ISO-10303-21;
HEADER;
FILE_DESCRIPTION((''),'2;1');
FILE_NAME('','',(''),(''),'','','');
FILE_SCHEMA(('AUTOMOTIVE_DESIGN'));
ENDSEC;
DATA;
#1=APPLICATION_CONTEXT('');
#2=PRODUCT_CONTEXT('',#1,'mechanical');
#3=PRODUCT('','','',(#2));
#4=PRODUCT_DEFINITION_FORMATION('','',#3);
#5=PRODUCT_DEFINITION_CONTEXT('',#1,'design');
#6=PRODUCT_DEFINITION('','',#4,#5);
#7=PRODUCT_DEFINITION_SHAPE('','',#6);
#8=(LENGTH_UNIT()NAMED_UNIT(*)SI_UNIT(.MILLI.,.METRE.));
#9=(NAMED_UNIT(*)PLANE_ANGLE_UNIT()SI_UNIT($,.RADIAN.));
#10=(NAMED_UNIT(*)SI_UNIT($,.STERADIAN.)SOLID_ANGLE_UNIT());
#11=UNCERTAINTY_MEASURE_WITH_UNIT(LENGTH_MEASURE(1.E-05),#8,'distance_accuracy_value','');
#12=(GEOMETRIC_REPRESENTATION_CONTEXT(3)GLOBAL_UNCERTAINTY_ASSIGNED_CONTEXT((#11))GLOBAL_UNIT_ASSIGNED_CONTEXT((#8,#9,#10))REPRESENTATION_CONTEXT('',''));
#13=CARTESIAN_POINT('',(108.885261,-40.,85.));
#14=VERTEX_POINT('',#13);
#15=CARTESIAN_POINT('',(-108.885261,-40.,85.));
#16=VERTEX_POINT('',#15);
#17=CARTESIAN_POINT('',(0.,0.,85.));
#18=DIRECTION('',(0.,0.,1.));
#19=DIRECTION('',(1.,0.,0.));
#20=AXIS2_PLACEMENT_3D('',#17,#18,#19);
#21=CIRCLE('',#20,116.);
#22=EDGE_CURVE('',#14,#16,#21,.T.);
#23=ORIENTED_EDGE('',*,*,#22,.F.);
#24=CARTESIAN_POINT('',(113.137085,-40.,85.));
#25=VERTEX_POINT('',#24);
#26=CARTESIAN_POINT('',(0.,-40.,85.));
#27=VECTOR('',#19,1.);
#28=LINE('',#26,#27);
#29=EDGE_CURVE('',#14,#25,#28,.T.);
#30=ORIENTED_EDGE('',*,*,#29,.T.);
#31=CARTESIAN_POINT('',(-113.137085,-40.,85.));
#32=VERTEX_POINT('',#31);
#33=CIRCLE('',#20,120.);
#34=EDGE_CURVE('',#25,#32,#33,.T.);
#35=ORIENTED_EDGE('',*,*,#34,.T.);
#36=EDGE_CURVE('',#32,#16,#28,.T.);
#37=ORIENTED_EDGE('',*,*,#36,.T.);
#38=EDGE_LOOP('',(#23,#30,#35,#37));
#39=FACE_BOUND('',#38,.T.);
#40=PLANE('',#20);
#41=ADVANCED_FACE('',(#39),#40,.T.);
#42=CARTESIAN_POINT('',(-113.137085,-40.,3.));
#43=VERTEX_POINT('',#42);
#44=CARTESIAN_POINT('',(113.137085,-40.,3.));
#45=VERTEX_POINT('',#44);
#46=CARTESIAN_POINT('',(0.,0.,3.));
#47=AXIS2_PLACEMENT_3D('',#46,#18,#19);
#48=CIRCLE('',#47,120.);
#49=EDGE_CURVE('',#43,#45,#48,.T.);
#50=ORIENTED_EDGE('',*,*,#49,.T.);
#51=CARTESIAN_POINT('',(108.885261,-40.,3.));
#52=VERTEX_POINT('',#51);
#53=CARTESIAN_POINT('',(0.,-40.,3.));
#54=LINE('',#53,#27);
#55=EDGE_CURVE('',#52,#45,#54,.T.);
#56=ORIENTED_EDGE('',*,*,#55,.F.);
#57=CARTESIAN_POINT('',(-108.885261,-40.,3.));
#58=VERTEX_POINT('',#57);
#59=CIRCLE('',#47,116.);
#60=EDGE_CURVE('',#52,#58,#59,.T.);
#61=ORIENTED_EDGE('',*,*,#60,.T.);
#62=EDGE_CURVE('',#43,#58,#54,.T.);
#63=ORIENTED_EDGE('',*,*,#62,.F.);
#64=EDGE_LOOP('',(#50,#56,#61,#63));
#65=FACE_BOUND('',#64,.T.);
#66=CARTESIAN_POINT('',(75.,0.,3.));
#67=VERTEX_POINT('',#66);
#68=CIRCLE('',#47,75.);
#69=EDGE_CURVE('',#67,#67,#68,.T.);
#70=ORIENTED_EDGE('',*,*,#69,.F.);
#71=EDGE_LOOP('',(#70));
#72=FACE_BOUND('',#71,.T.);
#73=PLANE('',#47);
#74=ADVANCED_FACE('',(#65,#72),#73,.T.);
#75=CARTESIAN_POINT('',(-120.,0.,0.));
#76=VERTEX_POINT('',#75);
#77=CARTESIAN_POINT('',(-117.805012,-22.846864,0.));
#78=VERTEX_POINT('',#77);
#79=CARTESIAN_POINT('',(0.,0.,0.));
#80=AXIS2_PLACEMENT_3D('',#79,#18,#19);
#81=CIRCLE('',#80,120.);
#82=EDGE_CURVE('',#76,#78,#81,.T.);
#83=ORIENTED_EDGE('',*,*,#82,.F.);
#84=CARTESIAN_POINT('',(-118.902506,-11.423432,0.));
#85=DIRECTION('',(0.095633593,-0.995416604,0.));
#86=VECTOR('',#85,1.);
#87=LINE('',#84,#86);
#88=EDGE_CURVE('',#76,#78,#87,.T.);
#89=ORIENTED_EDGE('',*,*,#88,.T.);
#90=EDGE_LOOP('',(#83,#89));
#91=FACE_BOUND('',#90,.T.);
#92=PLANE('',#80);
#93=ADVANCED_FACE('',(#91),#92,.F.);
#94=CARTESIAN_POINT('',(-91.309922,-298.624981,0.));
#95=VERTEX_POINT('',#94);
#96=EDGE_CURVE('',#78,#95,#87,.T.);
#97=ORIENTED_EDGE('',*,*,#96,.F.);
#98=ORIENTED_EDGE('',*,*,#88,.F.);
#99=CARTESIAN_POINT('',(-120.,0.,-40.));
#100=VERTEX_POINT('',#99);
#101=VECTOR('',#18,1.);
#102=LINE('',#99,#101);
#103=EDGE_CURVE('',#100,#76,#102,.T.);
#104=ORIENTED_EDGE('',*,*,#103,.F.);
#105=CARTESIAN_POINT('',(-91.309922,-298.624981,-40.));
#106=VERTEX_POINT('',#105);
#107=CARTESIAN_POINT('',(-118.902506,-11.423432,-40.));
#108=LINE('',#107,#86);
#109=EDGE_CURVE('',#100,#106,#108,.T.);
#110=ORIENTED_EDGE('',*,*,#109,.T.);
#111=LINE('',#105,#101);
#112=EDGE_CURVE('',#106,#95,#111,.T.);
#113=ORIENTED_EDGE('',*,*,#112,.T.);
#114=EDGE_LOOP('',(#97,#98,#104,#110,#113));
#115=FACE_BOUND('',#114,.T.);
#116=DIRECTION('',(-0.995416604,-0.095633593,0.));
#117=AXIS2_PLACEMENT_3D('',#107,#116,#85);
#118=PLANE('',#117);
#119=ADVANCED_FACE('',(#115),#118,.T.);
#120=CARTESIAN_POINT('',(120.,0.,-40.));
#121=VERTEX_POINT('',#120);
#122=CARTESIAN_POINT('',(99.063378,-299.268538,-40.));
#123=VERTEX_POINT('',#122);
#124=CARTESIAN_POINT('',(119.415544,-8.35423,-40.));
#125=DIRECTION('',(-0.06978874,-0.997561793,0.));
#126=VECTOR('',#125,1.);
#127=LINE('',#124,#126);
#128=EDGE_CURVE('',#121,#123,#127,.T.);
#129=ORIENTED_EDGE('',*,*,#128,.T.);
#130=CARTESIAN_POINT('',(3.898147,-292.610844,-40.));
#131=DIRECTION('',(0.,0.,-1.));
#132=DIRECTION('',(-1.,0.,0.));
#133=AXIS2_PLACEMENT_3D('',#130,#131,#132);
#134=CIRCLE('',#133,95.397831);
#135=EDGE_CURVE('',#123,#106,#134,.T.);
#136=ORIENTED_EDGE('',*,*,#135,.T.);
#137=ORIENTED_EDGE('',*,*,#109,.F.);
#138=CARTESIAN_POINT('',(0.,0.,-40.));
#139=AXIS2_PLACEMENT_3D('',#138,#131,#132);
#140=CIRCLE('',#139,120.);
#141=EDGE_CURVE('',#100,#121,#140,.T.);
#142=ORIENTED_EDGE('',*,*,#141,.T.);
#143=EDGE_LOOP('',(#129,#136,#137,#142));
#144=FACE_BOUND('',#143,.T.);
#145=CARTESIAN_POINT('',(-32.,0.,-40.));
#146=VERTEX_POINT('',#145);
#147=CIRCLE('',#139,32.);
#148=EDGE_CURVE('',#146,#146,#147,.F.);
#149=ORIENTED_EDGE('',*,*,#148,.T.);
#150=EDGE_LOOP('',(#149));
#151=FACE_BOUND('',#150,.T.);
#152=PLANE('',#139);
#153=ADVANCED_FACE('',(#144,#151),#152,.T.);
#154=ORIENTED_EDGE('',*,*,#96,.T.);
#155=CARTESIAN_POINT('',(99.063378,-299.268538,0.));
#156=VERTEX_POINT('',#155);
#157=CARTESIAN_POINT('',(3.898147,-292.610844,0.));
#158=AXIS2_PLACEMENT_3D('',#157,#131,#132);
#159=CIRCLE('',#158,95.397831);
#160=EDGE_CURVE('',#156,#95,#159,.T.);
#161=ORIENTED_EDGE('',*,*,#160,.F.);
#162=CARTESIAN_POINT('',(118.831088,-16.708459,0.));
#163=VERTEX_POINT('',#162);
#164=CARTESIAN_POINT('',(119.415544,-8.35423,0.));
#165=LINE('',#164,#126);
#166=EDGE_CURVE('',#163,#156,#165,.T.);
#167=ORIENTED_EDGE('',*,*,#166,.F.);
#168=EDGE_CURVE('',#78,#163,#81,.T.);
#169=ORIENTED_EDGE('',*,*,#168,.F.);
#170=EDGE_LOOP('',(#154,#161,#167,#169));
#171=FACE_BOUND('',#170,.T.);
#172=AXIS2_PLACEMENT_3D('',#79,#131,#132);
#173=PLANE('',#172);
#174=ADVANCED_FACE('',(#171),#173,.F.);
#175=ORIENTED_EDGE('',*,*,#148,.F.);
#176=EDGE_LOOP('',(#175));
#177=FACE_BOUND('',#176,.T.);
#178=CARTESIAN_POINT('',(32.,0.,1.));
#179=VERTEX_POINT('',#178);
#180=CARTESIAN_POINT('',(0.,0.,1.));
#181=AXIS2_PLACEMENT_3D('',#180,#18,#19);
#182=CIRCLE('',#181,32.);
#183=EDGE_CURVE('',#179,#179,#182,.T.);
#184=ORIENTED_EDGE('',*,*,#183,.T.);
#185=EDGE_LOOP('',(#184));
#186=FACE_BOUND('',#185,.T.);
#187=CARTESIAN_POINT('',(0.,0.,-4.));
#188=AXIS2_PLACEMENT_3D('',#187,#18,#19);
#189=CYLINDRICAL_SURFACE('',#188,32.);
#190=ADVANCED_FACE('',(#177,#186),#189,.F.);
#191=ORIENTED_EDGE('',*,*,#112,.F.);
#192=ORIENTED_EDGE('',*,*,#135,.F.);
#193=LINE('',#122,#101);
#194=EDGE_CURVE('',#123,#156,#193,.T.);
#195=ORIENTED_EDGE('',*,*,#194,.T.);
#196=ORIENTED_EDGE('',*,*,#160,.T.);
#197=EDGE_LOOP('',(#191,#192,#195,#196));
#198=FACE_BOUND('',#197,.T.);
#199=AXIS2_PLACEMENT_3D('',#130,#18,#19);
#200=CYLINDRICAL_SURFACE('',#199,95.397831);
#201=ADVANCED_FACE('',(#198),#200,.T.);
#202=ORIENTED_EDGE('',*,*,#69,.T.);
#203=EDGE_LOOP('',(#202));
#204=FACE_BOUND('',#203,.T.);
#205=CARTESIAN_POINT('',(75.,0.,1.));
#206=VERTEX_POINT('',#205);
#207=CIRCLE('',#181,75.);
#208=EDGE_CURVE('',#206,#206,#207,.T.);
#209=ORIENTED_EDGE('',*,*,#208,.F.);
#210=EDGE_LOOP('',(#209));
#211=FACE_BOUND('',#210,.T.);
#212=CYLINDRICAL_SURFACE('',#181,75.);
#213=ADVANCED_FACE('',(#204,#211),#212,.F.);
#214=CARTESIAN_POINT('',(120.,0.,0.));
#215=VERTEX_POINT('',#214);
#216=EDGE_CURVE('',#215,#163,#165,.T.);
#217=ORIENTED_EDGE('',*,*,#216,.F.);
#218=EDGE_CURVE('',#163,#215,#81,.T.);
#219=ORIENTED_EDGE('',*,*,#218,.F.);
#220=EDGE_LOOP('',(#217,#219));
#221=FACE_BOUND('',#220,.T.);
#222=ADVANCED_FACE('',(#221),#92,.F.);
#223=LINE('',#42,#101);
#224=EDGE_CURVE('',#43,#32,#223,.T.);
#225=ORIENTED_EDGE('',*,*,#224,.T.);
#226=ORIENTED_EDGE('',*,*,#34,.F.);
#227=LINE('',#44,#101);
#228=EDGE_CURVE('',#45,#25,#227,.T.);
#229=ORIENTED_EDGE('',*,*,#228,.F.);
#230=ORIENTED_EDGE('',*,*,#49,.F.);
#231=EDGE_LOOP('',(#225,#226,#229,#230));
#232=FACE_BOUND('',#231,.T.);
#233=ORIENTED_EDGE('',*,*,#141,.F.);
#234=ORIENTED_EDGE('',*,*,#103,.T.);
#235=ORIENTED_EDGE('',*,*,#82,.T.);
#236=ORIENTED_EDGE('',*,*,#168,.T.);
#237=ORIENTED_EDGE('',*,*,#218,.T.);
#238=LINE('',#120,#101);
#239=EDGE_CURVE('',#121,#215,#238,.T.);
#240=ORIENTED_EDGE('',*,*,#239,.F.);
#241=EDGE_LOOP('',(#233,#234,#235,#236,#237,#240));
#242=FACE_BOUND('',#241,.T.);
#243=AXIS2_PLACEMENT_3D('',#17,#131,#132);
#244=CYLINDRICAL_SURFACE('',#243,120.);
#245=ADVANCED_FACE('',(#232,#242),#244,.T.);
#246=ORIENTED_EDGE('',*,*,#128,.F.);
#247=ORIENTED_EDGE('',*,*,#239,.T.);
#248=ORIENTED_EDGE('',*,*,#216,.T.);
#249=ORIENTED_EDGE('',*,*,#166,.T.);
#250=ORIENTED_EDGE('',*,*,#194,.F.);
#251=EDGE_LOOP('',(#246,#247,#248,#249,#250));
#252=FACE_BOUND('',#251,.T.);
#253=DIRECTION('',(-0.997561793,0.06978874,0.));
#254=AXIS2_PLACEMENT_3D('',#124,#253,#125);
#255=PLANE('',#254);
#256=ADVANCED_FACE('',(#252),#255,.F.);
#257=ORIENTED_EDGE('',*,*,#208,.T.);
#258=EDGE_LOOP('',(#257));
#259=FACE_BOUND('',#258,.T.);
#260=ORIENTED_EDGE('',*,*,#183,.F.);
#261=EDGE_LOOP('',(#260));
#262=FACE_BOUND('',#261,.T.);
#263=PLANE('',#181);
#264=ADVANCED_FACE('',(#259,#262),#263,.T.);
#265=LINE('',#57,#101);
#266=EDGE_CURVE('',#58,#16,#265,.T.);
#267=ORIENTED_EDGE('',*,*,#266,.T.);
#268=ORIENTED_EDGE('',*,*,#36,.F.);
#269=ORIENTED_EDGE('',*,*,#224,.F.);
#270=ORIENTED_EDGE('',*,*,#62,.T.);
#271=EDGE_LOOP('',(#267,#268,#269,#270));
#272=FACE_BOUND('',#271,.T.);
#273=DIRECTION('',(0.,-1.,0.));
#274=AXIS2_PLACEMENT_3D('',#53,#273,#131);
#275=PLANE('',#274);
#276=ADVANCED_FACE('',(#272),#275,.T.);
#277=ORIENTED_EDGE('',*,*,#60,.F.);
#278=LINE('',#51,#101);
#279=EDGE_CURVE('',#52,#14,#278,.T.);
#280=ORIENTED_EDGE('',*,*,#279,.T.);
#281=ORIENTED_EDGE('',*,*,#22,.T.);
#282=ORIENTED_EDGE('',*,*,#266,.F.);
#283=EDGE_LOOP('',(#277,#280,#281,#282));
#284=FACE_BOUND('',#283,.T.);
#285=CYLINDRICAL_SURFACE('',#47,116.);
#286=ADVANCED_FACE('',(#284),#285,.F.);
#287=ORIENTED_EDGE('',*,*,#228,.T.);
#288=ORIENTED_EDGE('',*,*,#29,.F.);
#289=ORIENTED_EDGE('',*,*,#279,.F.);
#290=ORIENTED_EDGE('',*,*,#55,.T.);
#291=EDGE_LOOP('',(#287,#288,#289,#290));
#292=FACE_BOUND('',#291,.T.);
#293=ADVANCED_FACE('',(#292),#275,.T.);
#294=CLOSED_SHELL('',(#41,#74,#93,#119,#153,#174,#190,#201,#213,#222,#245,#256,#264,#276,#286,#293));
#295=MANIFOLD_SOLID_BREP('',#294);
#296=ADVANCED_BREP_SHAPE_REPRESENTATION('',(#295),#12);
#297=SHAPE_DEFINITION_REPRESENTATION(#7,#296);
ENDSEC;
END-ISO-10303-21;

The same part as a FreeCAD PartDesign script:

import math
import FreeCAD as App
import Part
import Sketcher
from FreeCAD import Vector

doc = App.newDocument("Part")
body = doc.addObject("PartDesign::Body", "Body")

# Sketch on XY plane
sketch1 = doc.addObject("Sketcher::SketchObject", "Sketch")
body.addObject(sketch1)
sketch1.AttachmentSupport = (doc.XY_Plane, [""])
sketch1.MapMode = "FlatFace"
sketch1.addGeometry(Part.Circle(Vector(0, 0, 0), Vector(0, 0, 1), 120), False)
sketch1.addConstraint(Sketcher.Constraint("Coincident", 0, 3, -1, 1))
sketch1.addConstraint(Sketcher.Constraint("Diameter", 0, 240.0))
pad1 = doc.addObject("PartDesign::Pad", "Pad")
body.addObject(pad1)
pad1.Profile = sketch1
pad1.Length = 85

# Sketch on XY plane
sketch2 = doc.addObject("Sketcher::SketchObject", "Sketch001")
body.addObject(sketch2)
sketch2.AttachmentSupport = (doc.XY_Plane, [""])
sketch2.MapMode = "FlatFace"
sketch2.AttachmentOffset = App.Placement(Vector(0, 0, 3), App.Rotation())
sketch2.addGeometry(Part.LineSegment(Vector(-108.885261, -40, 0), Vector(-113.137085, -40, 0)), False)
sketch2.addGeometry(Part.ArcOfCircle(Part.Circle(Vector(0, 0, 0), Vector(0, 0, 1), 120), math.radians(-160.528779), math.radians(-19.471221)), False)
sketch2.addGeometry(Part.LineSegment(Vector(113.137085, -40, 0), Vector(108.885261, -40, 0)), False)
sketch2.addGeometry(Part.ArcOfCircle(Part.Circle(Vector(0, 0, 0), Vector(0, 0, 1), 116), math.radians(-20.171271), math.radians(200.171271)), False)
sketch2.addConstraint(Sketcher.Constraint("Coincident", 0, 2, 1, 1))
sketch2.addConstraint(Sketcher.Constraint("Coincident", 1, 2, 2, 1))
sketch2.addConstraint(Sketcher.Constraint("Coincident", 2, 2, 3, 1))
sketch2.addConstraint(Sketcher.Constraint("Coincident", 3, 2, 0, 1))
sketch2.addConstraint(Sketcher.Constraint("Horizontal", 0))
sketch2.addConstraint(Sketcher.Constraint("Horizontal", 2))
sketch2.addConstraint(Sketcher.Constraint("Coincident", 1, 3, -1, 1))
sketch2.addConstraint(Sketcher.Constraint("Coincident", 3, 3, -1, 1))
sketch2.addConstraint(Sketcher.Constraint("Horizontal", 0, 2, 1, 2))
sketch2.addConstraint(Sketcher.Constraint("Radius", 1, 120.0))
sketch2.addConstraint(Sketcher.Constraint("Radius", 3, 116.0))
sketch2.addConstraint(Sketcher.Constraint("DistanceY", 0, 2, -1, 1, 40.0))
pocket1 = doc.addObject("PartDesign::Pocket", "Pocket")
body.addObject(pocket1)
pocket1.Profile = sketch2
pocket1.Length = 82
pocket1.Reversed = True

# Sketch on XY plane
sketch3 = doc.addObject("Sketcher::SketchObject", "Sketch002")
body.addObject(sketch3)
sketch3.AttachmentSupport = (doc.XY_Plane, [""])
sketch3.MapMode = "FlatFace"
sketch3.AttachmentOffset = App.Placement(Vector(0, 0, 3), App.Rotation())
sketch3.addGeometry(Part.Circle(Vector(0, 0, 0), Vector(0, 0, 1), 75), False)
sketch3.addConstraint(Sketcher.Constraint("Coincident", 0, 3, -1, 1))
sketch3.addConstraint(Sketcher.Constraint("Diameter", 0, 150.0))
pocket2 = doc.addObject("PartDesign::Pocket", "Pocket001")
body.addObject(pocket2)
pocket2.Profile = sketch3
pocket2.Type = "TwoLengths"
pocket2.Length = 2
pocket2.Length2 = 2
pocket2.Reversed = True

# Sketch on XY plane
sketch4 = doc.addObject("Sketcher::SketchObject", "Sketch003")
body.addObject(sketch4)
sketch4.AttachmentSupport = (doc.XY_Plane, [""])
sketch4.MapMode = "FlatFace"
sketch4.AttachmentOffset = App.Placement(Vector(0, 0, 1), App.Rotation())
sketch4.addGeometry(Part.Circle(Vector(0, 0, 0), Vector(0, 0, 1), 32), False)
sketch4.addConstraint(Sketcher.Constraint("Coincident", 0, 3, -1, 1))
sketch4.addConstraint(Sketcher.Constraint("Diameter", 0, 64.0))
pocket3 = doc.addObject("PartDesign::Pocket", "Pocket002")
body.addObject(pocket3)
pocket3.Profile = sketch4
pocket3.Length = 5

# Sketch on XY plane
sketch5 = doc.addObject("Sketcher::SketchObject", "Sketch004")
body.addObject(sketch5)
sketch5.AttachmentSupport = (doc.XY_Plane, [""])
sketch5.MapMode = "FlatFace"
sketch5.AttachmentOffset = App.Placement(Vector(0, 0, -40), App.Rotation())
sketch5.addGeometry(Part.ArcOfCircle(Part.Circle(Vector(0, 0, 0), Vector(0, 0, 1), 120), math.radians(0), math.radians(180)), False)
sketch5.addGeometry(Part.LineSegment(Vector(120, 0, 0), Vector(118.831088, -16.708459, 0)), False)
sketch5.addGeometry(Part.LineSegment(Vector(118.831088, -16.708459, 0), Vector(99.063378, -299.268538, 0)), False)
sketch5.addGeometry(Part.ArcOfCircle(Part.Circle(Vector(3.898147, -292.610844, 0), Vector(0, 0, 1), 95.397831), math.radians(-176.385522), math.radians(-4.001853)), False)
sketch5.addGeometry(Part.LineSegment(Vector(-91.309922, -298.624981, 0), Vector(-117.805012, -22.846864, 0)), False)
sketch5.addGeometry(Part.LineSegment(Vector(-117.805012, -22.846864, 0), Vector(-120, 0, 0)), False)
sketch5.addGeometry(Part.Circle(Vector(0, 0, 0), Vector(0, 0, 1), 32), False)
sketch5.addConstraint(Sketcher.Constraint("Coincident", 0, 1, 1, 1))
sketch5.addConstraint(Sketcher.Constraint("Coincident", 1, 2, 2, 1))
sketch5.addConstraint(Sketcher.Constraint("Tangent", 2, 2, 3, 2))
sketch5.addConstraint(Sketcher.Constraint("Coincident", 3, 1, 4, 1))
sketch5.addConstraint(Sketcher.Constraint("Coincident", 4, 2, 5, 1))
sketch5.addConstraint(Sketcher.Constraint("Coincident", 5, 2, 0, 2))
sketch5.addConstraint(Sketcher.Constraint("Coincident", 0, 3, -1, 1))
sketch5.addConstraint(Sketcher.Constraint("Coincident", 6, 3, -1, 1))
sketch5.addConstraint(Sketcher.Constraint("PointOnObject", 0, 1, -1))
sketch5.addConstraint(Sketcher.Constraint("PointOnObject", 5, 2, -1))
sketch5.addConstraint(Sketcher.Constraint("Parallel", 1, 2))
sketch5.addConstraint(Sketcher.Constraint("Parallel", 4, 5))
sketch5.addConstraint(Sketcher.Constraint("Diameter", 6, 64.0))
sketch5.addConstraint(Sketcher.Constraint("Radius", 0, 120.0))
sketch5.addConstraint(Sketcher.Constraint("Radius", 3, 95.397831))
sketch5.addConstraint(Sketcher.Constraint("DistanceX", 3, 1, 2, 2, 190.3733))
sketch5.addConstraint(Sketcher.Constraint("DistanceX", 4, 2, 1, 2, 236.636099))
sketch5.addConstraint(Sketcher.Constraint("DistanceY", 1, 2, -1, 1, 16.708459))
sketch5.addConstraint(Sketcher.Constraint("DistanceX", -1, 1, 2, 2, 99.063378))
sketch5.addConstraint(Sketcher.Constraint("DistanceY", 2, 2, -1, 1, 299.268538))
pad2 = doc.addObject("PartDesign::Pad", "Pad001")
body.addObject(pad2)
pad2.Profile = sketch5
pad2.Length = 40

doc.recompute()
